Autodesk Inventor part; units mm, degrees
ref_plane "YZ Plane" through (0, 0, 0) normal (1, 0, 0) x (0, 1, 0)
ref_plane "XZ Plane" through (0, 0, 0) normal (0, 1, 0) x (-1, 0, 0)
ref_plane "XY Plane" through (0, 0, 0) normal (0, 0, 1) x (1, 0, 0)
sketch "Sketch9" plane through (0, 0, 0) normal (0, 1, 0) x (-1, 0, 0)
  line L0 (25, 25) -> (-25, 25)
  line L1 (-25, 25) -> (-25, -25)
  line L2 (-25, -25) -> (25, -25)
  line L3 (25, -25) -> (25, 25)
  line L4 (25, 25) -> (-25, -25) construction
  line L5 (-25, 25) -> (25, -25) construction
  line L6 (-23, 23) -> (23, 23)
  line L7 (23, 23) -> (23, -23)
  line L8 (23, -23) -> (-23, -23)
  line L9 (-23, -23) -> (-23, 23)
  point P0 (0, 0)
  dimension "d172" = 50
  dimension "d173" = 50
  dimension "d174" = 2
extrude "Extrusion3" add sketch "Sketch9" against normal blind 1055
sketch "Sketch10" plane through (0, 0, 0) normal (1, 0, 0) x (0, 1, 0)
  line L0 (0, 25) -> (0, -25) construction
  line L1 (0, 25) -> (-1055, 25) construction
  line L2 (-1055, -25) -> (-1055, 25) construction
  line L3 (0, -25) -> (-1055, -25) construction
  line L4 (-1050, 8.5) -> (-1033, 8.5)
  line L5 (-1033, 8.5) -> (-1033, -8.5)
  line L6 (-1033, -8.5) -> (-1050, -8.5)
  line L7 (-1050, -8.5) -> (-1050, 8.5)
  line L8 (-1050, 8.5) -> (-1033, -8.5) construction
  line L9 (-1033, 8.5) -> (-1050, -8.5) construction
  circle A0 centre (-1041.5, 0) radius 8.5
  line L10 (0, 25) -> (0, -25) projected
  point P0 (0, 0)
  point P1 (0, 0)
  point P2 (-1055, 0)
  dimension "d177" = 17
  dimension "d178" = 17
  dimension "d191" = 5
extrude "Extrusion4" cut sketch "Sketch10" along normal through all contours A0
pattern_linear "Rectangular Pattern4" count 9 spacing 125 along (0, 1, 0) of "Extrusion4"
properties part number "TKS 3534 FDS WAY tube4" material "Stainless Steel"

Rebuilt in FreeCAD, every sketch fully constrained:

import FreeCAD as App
import Part
import Sketcher


def add_polygon(sketch, points):
    """Adds a closed chain of lines whose ends are joined by coincident constraints."""
    first, n = sketch.GeometryCount, len(points)
    for a, b in zip(points, points[1:] + points[:1]):
        sketch.addGeometry(Part.LineSegment(App.Vector(*a, 0), App.Vector(*b, 0)), False)
    for i in range(n):
        sketch.addConstraint(Sketcher.Constraint("Coincident", first + i, 2, first + (i + 1) % n, 1))

doc = App.newDocument("Part")
params = doc.addObject("Spreadsheet::Sheet", "Params")
for row, (alias, value) in enumerate([
    ("sketch1_width", "50 mm"),
    ("pad1_length", "1055 mm"),
    ("sketch2_diameter", "17 mm"),
    ("linearpattern_pitch", "125 mm"),
], start=1):
    params.set(f"A{row}", alias)
    params.set(f"B{row}", "=" + value)
    params.setAlias(f"B{row}", alias)

body = doc.addObject("PartDesign::Body", "Body")

# Sketch on XZ plane
sketch1 = body.newObject("Sketcher::SketchObject", "Sketch")
sketch1.AttachmentSupport = (doc.getObject("XZ_Plane"), [""])
sketch1.MapMode = "FlatFace"
add_polygon(sketch1, [(-25, -25), (-25, 25), (25, 25), (25, -25)])  # lines 0-3
add_polygon(sketch1, [(23, -23), (23, 23), (-23, 23), (-23, -23)])  # lines 4-7
sketch1.addConstraint([
    Sketcher.Constraint("Vertical", 0),
    Sketcher.Constraint("Horizontal", 1),
    Sketcher.Constraint("Vertical", 2),
    Sketcher.Constraint("Horizontal", 3),
    Sketcher.Constraint("Vertical", 4),
    Sketcher.Constraint("Horizontal", 5),
    Sketcher.Constraint("Vertical", 6),
    Sketcher.Constraint("Horizontal", 7),
    Sketcher.Constraint("Symmetric", 0, 2, 2, 2, -1, 1),
    Sketcher.Constraint("Symmetric", 4, 2, 6, 2, -1, 1),
    Sketcher.Constraint("Equal", 3, 0),
    Sketcher.Constraint("Equal", 7, 4),
    Sketcher.Constraint("DistanceX", 1, 1, 1, 2, 50.0),
    Sketcher.Constraint("DistanceX", 4, 2, 1, 2, 2.0),
])
sketch1.setExpression("Constraints[20]", "Params.sketch1_width")
pad1 = body.newObject("PartDesign::Pad", "Pad")
pad1.Profile = sketch1
pad1.setExpression("Length", "Params.pad1_length")

# Sketch on YZ plane
sketch2 = body.newObject("Sketcher::SketchObject", "Sketch001")
sketch2.AttachmentSupport = (doc.getObject("YZ_Plane"), [""])
sketch2.MapMode = "FlatFace"
sketch2.addGeometry(Part.Circle(App.Vector(-1042, 0, 0), App.Vector(0, 0, 1), 8), False)
sketch2.addConstraint([
    Sketcher.Constraint("PointOnObject", 0, 3, -1),
    Sketcher.Constraint("Diameter", 0, 17.0),
    Sketcher.Constraint("DistanceX", 0, 3, -1, 1, 1041.5),
])
sketch2.setExpression("Constraints[1]", "Params.sketch2_diameter")
pocket1 = body.newObject("PartDesign::Pocket", "Pocket")
pocket1.Profile = sketch2
pocket1.Type = "ThroughAll"
pocket1.Reversed = True
doc.recompute()

linearpattern = body.newObject("PartDesign::LinearPattern", "LinearPattern")
linearpattern.Originals = [pocket1]
linearpattern.Direction = (doc.getObject("Y_Axis"), [""])
linearpattern.Mode = "offset"
linearpattern.setExpression("Offset", "Params.linearpattern_pitch")
linearpattern.Occurrences = 9
body.Tip = linearpattern

doc.recompute()
